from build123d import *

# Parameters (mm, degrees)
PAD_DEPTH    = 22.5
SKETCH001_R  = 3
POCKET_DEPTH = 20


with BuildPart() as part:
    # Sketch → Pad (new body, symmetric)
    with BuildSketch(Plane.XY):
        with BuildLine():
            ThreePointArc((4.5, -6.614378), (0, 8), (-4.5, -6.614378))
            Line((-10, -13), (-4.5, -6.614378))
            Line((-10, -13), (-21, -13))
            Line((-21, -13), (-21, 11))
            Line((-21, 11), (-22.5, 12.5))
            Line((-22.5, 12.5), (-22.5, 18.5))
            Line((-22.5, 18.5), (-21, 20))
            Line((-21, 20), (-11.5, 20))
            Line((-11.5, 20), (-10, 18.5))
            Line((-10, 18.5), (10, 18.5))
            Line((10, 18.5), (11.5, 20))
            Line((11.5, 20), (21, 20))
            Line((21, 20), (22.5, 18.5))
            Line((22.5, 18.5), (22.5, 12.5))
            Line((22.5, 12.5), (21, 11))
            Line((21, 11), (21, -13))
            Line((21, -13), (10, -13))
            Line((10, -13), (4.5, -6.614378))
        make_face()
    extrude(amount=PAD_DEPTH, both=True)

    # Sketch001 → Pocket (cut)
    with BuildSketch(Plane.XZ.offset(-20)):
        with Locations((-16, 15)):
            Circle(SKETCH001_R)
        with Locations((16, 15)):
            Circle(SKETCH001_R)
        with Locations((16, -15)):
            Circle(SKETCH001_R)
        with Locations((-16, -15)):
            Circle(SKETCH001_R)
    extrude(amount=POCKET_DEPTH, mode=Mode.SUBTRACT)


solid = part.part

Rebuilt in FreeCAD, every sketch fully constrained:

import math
import FreeCAD as App
import Part
import Sketcher
from FreeCAD import Vector

doc = App.newDocument("Part")
body = doc.addObject("PartDesign::Body", "Body")

# Sketch on XY plane
sketch1 = body.newObject("Sketcher::SketchObject", "Sketch")
sketch1.AttachmentSupport = (doc.getObject("XY_Plane"), [""])
sketch1.MapMode = "FlatFace"
sketch1.addGeometry([
    Part.ArcOfCircle(Part.Circle(Vector(0, 0, 0), Vector(0, 0, 1), 8), math.radians(-56), math.radians(236)),  # 0
    Part.LineSegment(Vector(4.5, -6.6, 0), Vector(10, -13, 0)),  # 1
    Part.LineSegment(Vector(10, -13, 0), Vector(21, -13, 0)),  # 2
    Part.LineSegment(Vector(21, -13, 0), Vector(21, 11, 0)),  # 3
    Part.LineSegment(Vector(21, 11, 0), Vector(22.5, 12.5, 0)),  # 4
    Part.LineSegment(Vector(22.5, 12.5, 0), Vector(22.5, 18.5, 0)),  # 5
    Part.LineSegment(Vector(22.5, 18.5, 0), Vector(21, 20, 0)),  # 6
    Part.LineSegment(Vector(21, 20, 0), Vector(11.5, 20, 0)),  # 7
    Part.LineSegment(Vector(11.5, 20, 0), Vector(10, 18.5, 0)),  # 8
    Part.LineSegment(Vector(10, 18.5, 0), Vector(-10, 18.5, 0)),  # 9
    Part.LineSegment(Vector(-10, 18.5, 0), Vector(-11.5, 20, 0)),  # 10
    Part.LineSegment(Vector(-11.5, 20, 0), Vector(-21, 20, 0)),  # 11
    Part.LineSegment(Vector(-21, 20, 0), Vector(-22.5, 18.5, 0)),  # 12
    Part.LineSegment(Vector(-22.5, 18.5, 0), Vector(-22.5, 12.5, 0)),  # 13
    Part.LineSegment(Vector(-22.5, 12.5, 0), Vector(-21, 11, 0)),  # 14
    Part.LineSegment(Vector(-21, 11, 0), Vector(-21, -13, 0)),  # 15
    Part.LineSegment(Vector(-21, -13, 0), Vector(-10, -13, 0)),  # 16
    Part.LineSegment(Vector(-10, -13, 0), Vector(-4.5, -6.6, 0)),  # 17
], False)
sketch1.addConstraint([
    Sketcher.Constraint("Coincident", 0, 1, 1, 1),
    Sketcher.Constraint("Coincident", 1, 2, 2, 1),
    Sketcher.Constraint("Coincident", 2, 2, 3, 1),
    Sketcher.Constraint("Coincident", 3, 2, 4, 1),
    Sketcher.Constraint("Coincident", 4, 2, 5, 1),
    Sketcher.Constraint("Coincident", 5, 2, 6, 1),
    Sketcher.Constraint("Coincident", 6, 2, 7, 1),
    Sketcher.Constraint("Coincident", 7, 2, 8, 1),
    Sketcher.Constraint("Coincident", 8, 2, 9, 1),
    Sketcher.Constraint("Coincident", 9, 2, 10, 1),
    Sketcher.Constraint("Coincident", 10, 2, 11, 1),
    Sketcher.Constraint("Coincident", 11, 2, 12, 1),
    Sketcher.Constraint("Coincident", 12, 2, 13, 1),
    Sketcher.Constraint("Coincident", 13, 2, 14, 1),
    Sketcher.Constraint("Coincident", 14, 2, 15, 1),
    Sketcher.Constraint("Coincident", 15, 2, 16, 1),
    Sketcher.Constraint("Coincident", 16, 2, 17, 1),
    Sketcher.Constraint("Coincident", 17, 2, 0, 2),
    Sketcher.Constraint("Horizontal", 2),
    Sketcher.Constraint("Vertical", 3),
    Sketcher.Constraint("Vertical", 5),
    Sketcher.Constraint("Horizontal", 7),
    Sketcher.Constraint("Horizontal", 9),
    Sketcher.Constraint("Horizontal", 11),
    Sketcher.Constraint("Vertical", 13),
    Sketcher.Constraint("Vertical", 15),
    Sketcher.Constraint("Horizontal", 16),
    Sketcher.Constraint("Coincident", 0, 3, -1, 1),
    Sketcher.Constraint("Symmetric", 7, 2, 10, 2, -2),
    Sketcher.Constraint("Symmetric", 5, 2, 12, 2, -2),
    Sketcher.Constraint("Symmetric", 3, 2, 14, 2, -2),
    Sketcher.Constraint("Symmetric", 1, 2, 16, 2, -2),
    Sketcher.Constraint("Perpendicular", 4, 6),
    Sketcher.Constraint("Perpendicular", 6, 8),
    Sketcher.Constraint("Perpendicular", 8, 10),
    Sketcher.Constraint("Perpendicular", 10, 12),
    Sketcher.Constraint("Perpendicular", 12, 14),
    Sketcher.Constraint("Horizontal", 5, 2, 8, 2),
    Sketcher.Constraint("Horizontal", 4, 2, 13, 2),
    Sketcher.Constraint("Horizontal", 0, 1, 17, 2),
    Sketcher.Constraint("Vertical", 3, 2, 6, 2),
    Sketcher.Constraint("Vertical", 1, 2, 8, 2),
    Sketcher.Constraint("Radius", 0, 8.0),
    Sketcher.Constraint("DistanceX", 2, 1, 2, 2, 11.0),
    Sketcher.Constraint("DistanceX", 9, 2, 9, 1, 20.0),
    Sketcher.Constraint("DistanceY", 3, 1, 3, 2, 24.0),
    Sketcher.Constraint("DistanceY", 5, 1, 5, 2, 6.0),
    Sketcher.Constraint("DistanceX", 7, 2, 7, 1, 9.5),
    Sketcher.Constraint("DistanceY", 1, 2, -1, 1, 13.0),
    Sketcher.Constraint("DistanceX", 0, 1, 4, 2, 18.0),
])
pad1 = body.newObject("PartDesign::Pad", "Pad")
pad1.Profile = sketch1
pad1.Length = 45
pad1.Midplane = True

# Sketch on XZ plane
sketch2 = body.newObject("Sketcher::SketchObject", "Sketch001")
sketch2.AttachmentSupport = (doc.getObject("XZ_Plane"), [""])
sketch2.MapMode = "FlatFace"
sketch2.AttachmentOffset = App.Placement(Vector(0, 0, -20), App.Rotation())
sketch2.addGeometry([
    Part.Circle(Vector(-16, 15, 0), Vector(0, 0, 1), 3),
    Part.Circle(Vector(16, 15, 0), Vector(0, 0, 1), 3),
    Part.Circle(Vector(16, -15, 0), Vector(0, 0, 1), 3),
    Part.Circle(Vector(-16, -15, 0), Vector(0, 0, 1), 3),
], False)
sketch2.addConstraint([
    Sketcher.Constraint("Equal", 0, 1),
    Sketcher.Constraint("Equal", 1, 2),
    Sketcher.Constraint("Equal", 2, 3),
    Sketcher.Constraint("Symmetric", 0, 3, 2, 3, -1, 1),
    Sketcher.Constraint("Symmetric", 1, 3, 3, 3, -1, 1),
    Sketcher.Constraint("Symmetric", 0, 3, 1, 3, -2),
    Sketcher.Constraint("Diameter", 0, 6.0),
    Sketcher.Constraint("DistanceX", 0, 3, -1, 1, 16.0),
    Sketcher.Constraint("DistanceY", -1, 1, 0, 3, 15.0),
])
pocket1 = body.newObject("PartDesign::Pocket", "Pocket")
pocket1.Profile = sketch2
pocket1.Length = 20
pocket1.Reversed = True

doc.recompute()
